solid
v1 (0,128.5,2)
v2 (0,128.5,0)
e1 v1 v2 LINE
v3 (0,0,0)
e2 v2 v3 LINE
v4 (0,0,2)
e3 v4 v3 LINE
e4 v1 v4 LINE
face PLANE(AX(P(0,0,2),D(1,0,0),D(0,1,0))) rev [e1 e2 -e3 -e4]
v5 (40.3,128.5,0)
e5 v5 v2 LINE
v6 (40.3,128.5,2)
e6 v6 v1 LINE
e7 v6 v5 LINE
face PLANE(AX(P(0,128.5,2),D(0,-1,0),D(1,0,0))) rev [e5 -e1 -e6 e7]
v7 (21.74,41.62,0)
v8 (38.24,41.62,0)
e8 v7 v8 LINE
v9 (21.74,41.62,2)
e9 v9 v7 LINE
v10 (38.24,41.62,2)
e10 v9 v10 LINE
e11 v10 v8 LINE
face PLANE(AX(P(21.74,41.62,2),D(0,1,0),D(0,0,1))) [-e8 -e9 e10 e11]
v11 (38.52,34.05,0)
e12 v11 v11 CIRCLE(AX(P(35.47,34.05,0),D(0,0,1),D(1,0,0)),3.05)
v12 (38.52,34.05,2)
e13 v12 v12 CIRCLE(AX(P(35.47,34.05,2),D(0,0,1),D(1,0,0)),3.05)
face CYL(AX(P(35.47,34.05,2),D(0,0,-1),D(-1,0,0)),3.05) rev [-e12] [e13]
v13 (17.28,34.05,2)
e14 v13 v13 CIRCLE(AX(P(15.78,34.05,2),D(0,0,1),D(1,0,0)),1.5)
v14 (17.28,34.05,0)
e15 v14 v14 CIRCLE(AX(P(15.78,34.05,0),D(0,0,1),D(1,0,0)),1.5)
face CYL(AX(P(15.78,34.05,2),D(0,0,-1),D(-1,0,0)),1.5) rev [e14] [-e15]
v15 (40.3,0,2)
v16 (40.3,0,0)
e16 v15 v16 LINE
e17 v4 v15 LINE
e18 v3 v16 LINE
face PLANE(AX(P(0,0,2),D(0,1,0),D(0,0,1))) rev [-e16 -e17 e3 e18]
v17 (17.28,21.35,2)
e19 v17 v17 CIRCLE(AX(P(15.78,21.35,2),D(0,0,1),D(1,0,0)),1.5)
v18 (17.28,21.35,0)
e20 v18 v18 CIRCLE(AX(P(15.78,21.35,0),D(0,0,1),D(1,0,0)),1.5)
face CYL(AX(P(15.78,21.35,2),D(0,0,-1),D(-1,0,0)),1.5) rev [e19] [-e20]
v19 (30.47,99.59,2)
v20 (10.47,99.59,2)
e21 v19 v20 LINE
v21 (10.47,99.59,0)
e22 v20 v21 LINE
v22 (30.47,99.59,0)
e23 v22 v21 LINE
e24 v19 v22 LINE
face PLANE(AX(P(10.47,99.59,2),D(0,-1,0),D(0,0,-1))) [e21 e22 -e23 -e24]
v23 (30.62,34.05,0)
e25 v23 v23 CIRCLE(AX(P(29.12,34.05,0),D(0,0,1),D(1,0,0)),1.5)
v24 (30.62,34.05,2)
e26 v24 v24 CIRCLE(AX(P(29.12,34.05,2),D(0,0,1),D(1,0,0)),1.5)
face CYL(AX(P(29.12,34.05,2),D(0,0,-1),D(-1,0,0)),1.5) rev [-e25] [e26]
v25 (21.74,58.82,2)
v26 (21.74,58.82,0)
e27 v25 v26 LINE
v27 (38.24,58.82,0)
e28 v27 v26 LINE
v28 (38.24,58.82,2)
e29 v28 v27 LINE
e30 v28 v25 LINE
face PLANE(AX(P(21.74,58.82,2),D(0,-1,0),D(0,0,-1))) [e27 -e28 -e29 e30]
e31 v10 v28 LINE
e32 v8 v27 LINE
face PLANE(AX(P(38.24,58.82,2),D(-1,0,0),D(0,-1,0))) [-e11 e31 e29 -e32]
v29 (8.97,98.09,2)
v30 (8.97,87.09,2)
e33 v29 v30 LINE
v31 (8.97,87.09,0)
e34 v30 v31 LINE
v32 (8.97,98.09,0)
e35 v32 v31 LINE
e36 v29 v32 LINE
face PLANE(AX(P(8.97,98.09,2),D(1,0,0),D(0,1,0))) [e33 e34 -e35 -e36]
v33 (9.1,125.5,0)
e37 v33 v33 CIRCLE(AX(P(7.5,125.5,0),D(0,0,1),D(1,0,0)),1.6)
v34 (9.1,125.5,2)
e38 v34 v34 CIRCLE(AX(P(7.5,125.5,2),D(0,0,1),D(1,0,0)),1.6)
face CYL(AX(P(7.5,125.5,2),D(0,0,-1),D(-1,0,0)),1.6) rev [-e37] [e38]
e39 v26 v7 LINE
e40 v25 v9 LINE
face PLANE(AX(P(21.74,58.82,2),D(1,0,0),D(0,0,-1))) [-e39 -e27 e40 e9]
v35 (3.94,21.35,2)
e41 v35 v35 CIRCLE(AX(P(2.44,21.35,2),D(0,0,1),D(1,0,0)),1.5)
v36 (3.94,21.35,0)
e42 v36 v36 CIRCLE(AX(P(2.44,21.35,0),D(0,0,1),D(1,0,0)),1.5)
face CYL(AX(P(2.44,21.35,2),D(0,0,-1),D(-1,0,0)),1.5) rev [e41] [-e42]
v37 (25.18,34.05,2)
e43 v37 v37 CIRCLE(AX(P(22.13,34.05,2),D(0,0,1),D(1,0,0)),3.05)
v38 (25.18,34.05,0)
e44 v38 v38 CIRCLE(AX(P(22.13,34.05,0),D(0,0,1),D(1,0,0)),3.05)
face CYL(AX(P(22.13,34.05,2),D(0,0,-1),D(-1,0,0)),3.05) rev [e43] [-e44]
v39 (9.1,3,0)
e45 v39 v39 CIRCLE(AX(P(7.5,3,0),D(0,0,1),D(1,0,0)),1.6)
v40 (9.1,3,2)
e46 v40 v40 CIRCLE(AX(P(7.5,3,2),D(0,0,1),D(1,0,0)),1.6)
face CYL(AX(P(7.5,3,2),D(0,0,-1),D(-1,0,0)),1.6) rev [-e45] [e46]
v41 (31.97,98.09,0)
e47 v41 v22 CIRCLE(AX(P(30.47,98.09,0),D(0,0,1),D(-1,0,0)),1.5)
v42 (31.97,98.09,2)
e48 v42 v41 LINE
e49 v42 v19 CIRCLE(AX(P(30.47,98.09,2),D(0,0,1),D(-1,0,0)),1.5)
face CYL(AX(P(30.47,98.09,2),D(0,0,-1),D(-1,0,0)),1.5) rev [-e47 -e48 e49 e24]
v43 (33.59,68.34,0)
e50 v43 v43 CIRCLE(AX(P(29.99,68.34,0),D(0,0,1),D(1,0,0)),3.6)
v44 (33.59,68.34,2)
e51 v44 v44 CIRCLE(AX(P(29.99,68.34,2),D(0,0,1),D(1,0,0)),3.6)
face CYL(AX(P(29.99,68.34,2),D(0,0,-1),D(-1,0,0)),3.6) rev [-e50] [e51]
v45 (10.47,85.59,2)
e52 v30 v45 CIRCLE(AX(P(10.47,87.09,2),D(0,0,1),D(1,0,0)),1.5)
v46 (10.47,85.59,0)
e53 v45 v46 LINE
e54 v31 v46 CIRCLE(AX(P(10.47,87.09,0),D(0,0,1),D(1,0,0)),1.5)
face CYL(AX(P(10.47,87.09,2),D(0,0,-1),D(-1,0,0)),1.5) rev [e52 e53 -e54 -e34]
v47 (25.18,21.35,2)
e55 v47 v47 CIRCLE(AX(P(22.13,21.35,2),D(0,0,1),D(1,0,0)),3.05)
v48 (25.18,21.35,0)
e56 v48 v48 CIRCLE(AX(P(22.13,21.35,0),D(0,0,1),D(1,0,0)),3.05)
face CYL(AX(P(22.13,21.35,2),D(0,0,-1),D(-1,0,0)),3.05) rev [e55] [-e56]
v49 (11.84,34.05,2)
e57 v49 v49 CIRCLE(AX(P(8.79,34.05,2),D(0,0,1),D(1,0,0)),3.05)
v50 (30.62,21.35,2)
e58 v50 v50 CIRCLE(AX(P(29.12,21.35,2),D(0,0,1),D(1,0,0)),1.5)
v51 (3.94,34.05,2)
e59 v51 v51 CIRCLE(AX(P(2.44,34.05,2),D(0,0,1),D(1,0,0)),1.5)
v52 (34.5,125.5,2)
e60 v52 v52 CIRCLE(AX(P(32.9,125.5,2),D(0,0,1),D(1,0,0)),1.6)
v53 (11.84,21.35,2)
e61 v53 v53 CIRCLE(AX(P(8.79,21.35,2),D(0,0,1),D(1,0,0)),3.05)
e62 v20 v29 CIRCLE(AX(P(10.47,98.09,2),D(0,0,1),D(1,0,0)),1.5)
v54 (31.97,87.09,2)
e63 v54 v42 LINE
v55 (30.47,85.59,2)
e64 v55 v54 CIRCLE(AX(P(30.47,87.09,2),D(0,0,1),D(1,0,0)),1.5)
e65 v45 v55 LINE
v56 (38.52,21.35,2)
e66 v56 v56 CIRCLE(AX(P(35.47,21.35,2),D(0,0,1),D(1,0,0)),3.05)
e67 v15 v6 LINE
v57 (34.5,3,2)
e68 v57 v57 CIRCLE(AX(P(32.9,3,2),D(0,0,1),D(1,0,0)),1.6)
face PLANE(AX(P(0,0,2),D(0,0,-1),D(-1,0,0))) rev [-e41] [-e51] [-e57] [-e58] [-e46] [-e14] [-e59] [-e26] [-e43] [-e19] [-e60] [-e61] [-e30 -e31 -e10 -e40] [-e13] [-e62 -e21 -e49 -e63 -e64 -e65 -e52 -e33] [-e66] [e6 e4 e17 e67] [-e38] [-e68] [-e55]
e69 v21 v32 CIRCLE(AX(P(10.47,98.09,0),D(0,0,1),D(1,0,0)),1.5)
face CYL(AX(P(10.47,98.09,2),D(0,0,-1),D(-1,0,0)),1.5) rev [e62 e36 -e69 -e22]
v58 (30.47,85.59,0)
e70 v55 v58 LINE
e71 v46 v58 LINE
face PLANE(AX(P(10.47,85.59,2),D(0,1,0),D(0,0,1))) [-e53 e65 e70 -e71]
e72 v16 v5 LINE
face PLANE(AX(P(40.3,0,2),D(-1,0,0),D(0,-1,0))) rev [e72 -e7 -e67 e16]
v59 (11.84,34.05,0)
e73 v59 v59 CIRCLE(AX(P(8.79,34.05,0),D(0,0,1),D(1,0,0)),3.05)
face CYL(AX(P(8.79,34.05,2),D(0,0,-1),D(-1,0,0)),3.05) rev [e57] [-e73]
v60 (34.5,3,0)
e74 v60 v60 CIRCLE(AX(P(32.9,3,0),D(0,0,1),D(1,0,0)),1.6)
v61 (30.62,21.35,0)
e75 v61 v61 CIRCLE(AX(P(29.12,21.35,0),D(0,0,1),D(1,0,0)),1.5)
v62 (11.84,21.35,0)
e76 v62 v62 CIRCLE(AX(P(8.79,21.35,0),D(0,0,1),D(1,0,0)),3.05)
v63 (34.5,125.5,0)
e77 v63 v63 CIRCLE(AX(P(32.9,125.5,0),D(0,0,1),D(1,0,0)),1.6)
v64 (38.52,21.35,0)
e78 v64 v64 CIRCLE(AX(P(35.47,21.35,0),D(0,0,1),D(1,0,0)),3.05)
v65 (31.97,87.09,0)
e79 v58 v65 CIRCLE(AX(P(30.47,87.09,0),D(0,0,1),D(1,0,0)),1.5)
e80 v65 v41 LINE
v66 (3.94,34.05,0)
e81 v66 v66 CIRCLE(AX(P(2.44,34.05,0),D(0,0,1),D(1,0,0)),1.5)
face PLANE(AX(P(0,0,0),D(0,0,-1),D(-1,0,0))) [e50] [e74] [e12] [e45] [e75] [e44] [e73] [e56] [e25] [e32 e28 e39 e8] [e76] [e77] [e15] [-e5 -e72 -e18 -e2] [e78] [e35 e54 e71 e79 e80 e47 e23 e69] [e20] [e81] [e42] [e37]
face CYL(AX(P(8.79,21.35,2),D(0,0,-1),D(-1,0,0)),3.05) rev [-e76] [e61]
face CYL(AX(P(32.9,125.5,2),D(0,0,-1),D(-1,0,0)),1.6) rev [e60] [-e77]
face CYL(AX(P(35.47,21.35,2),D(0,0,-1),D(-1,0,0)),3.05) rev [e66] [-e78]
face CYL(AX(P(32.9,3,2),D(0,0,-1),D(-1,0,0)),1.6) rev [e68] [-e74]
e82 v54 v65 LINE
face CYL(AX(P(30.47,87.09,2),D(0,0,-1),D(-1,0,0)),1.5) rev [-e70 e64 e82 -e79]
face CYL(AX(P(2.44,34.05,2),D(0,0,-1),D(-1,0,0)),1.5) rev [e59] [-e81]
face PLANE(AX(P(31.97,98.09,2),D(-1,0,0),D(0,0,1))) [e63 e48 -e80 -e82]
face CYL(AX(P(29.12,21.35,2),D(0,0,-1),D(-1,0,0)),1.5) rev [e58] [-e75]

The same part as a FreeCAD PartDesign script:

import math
import FreeCAD as App
import Part
import Sketcher
Q = App.Units.Quantity


def add_polygon(sketch, points):
    """Adds a closed chain of lines whose ends are joined by coincident constraints."""
    first, n = sketch.GeometryCount, len(points)
    for a, b in zip(points, points[1:] + points[:1]):
        sketch.addGeometry(Part.LineSegment(App.Vector(*a, 0), App.Vector(*b, 0)), False)
    for i in range(n):
        sketch.addConstraint(Sketcher.Constraint("Coincident", first + i, 2, first + (i + 1) % n, 1))

doc = App.newDocument("Part")
body = doc.addObject("PartDesign::Body", "Body")

# Sketch on XY plane
sketch1 = doc.addObject("Sketcher::SketchObject", "Sketch")
body.addObject(sketch1)
sketch1.AttachmentSupport = (doc.XY_Plane, [""])
sketch1.MapMode = "FlatFace"
add_polygon(sketch1, [(0, 128.5), (0, 0), (40.3, 0), (40.3, 128.5)])  # lines 0-3
sketch1.addGeometry(Part.Circle(App.Vector(7.5, 3, 0), App.Vector(0, 0, 1), 1.6), False)  # 4
sketch1.addGeometry(Part.Circle(App.Vector(2.44, 21.35, 0), App.Vector(0, 0, 1), 1.5), False)  # 5
sketch1.addGeometry(Part.Circle(App.Vector(8.79, 21.35, 0), App.Vector(0, 0, 1), 3.05), False)  # 6
sketch1.addGeometry(Part.Circle(App.Vector(15.78, 21.35, 0), App.Vector(0, 0, 1), 1.5), False)  # 7
sketch1.addGeometry(Part.Circle(App.Vector(2.44, 34.05, 0), App.Vector(0, 0, 1), 1.5), False)  # 8
sketch1.addGeometry(Part.Circle(App.Vector(8.79, 34.05, 0), App.Vector(0, 0, 1), 3.05), False)  # 9
sketch1.addGeometry(Part.Circle(App.Vector(15.78, 34.05, 0), App.Vector(0, 0, 1), 1.5), False)  # 10
sketch1.addGeometry(Part.Circle(App.Vector(22.13, 21.35, 0), App.Vector(0, 0, 1), 3.05), False)  # 11
sketch1.addGeometry(Part.Circle(App.Vector(29.12, 21.35, 0), App.Vector(0, 0, 1), 1.5), False)  # 12
sketch1.addGeometry(Part.Circle(App.Vector(32.9, 3, 0), App.Vector(0, 0, 1), 1.6), False)  # 13
sketch1.addGeometry(Part.Circle(App.Vector(35.47, 21.35, 0), App.Vector(0, 0, 1), 3.05), False)  # 14
sketch1.addGeometry(Part.Circle(App.Vector(22.13, 34.05, 0), App.Vector(0, 0, 1), 3.05), False)  # 15
sketch1.addGeometry(Part.Circle(App.Vector(29.12, 34.05, 0), App.Vector(0, 0, 1), 1.5), False)  # 16
sketch1.addGeometry(Part.Circle(App.Vector(35.47, 34.05, 0), App.Vector(0, 0, 1), 3.05), False)  # 17
add_polygon(sketch1, [(38.24, 41.62), (21.74, 41.62), (21.74, 58.82), (38.24, 58.82)])  # lines 18-21
sketch1.addGeometry(Part.Circle(App.Vector(7.5, 125.5, 0), App.Vector(0, 0, 1), 1.6), False)  # 22
sketch1.addGeometry(Part.ArcOfCircle(Part.Circle(App.Vector(10.47, 98.09, 0), App.Vector(0, 0, 1), 1.5), math.radians(90), math.radians(180)), False)  # 23
sketch1.addGeometry(Part.LineSegment(App.Vector(10.47, 99.59, 0), App.Vector(30.47, 99.59, 0)), False)  # 24
sketch1.addGeometry(Part.ArcOfCircle(Part.Circle(App.Vector(30.47, 98.09, 0), App.Vector(0, 0, 1), 1.5), math.radians(0), math.radians(90)), False)  # 25
sketch1.addGeometry(Part.LineSegment(App.Vector(31.97, 98.09, 0), App.Vector(31.97, 87.09, 0)), False)  # 26
sketch1.addGeometry(Part.ArcOfCircle(Part.Circle(App.Vector(30.47, 87.09, 0), App.Vector(0, 0, 1), 1.5), math.radians(-90), math.radians(0)), False)  # 27
sketch1.addGeometry(Part.LineSegment(App.Vector(30.47, 85.59, 0), App.Vector(10.47, 85.59, 0)), False)  # 28
sketch1.addGeometry(Part.ArcOfCircle(Part.Circle(App.Vector(10.47, 87.09, 0), App.Vector(0, 0, 1), 1.5), math.radians(180), math.radians(270)), False)  # 29
sketch1.addGeometry(Part.LineSegment(App.Vector(8.97, 87.09, 0), App.Vector(8.97, 98.09, 0)), False)  # 30
sketch1.addGeometry(Part.Circle(App.Vector(29.99, 68.34, 0), App.Vector(0, 0, 1), 3.6), False)  # 31
sketch1.addGeometry(Part.Circle(App.Vector(32.9, 125.5, 0), App.Vector(0, 0, 1), 1.6), False)  # 32
sketch1.addConstraint([
    Sketcher.Constraint("Tangent", 23, 1, 24, 1),
    Sketcher.Constraint("Tangent", 24, 2, 25, 2),
    Sketcher.Constraint("Tangent", 25, 1, 26, 1),
    Sketcher.Constraint("Tangent", 26, 2, 27, 2),
    Sketcher.Constraint("Tangent", 27, 1, 28, 1),
    Sketcher.Constraint("Tangent", 28, 2, 29, 2),
    Sketcher.Constraint("Tangent", 29, 1, 30, 1),
    Sketcher.Constraint("Tangent", 30, 2, 23, 2),
    Sketcher.Constraint("Vertical", 0),
    Sketcher.Constraint("Horizontal", 1),
    Sketcher.Constraint("Vertical", 2),
    Sketcher.Constraint("Horizontal", 3),
    Sketcher.Constraint("Horizontal", 18),
    Sketcher.Constraint("Vertical", 19),
    Sketcher.Constraint("Horizontal", 20),
    Sketcher.Constraint("Vertical", 21),
    Sketcher.Constraint("Horizontal", 24),
    Sketcher.Constraint("Vertical", 26),
    Sketcher.Constraint("Horizontal", 28),
    Sketcher.Constraint("Vertical", 30),
    Sketcher.Constraint("Coincident", 0, 2, -1, 1),
    Sketcher.Constraint("Equal", 5, 7),
    Sketcher.Constraint("Equal", 7, 8),
    Sketcher.Constraint("Equal", 6, 9),
    Sketcher.Constraint("Equal", 8, 10),
    Sketcher.Constraint("Equal", 9, 11),
    Sketcher.Constraint("Equal", 10, 12),
    Sketcher.Constraint("Equal", 4, 13),
    Sketcher.Constraint("Equal", 11, 14),
    Sketcher.Constraint("Equal", 14, 15),
    Sketcher.Constraint("Equal", 12, 16),
    Sketcher.Constraint("Equal", 15, 17),
    Sketcher.Constraint("Equal", 13, 22),
    Sketcher.Constraint("Equal", 16, 23),
    Sketcher.Constraint("Equal", 23, 25),
    Sketcher.Constraint("Equal", 25, 27),
    Sketcher.Constraint("Equal", 27, 29),
    Sketcher.Constraint("Equal", 22, 32),
    Sketcher.Constraint("Horizontal", 5, 3, 6, 3),
    Sketcher.Constraint("Horizontal", 6, 3, 7, 3),
    Sketcher.Constraint("Horizontal", 8, 3, 9, 3),
    Sketcher.Constraint("Horizontal", 9, 3, 10, 3),
    Sketcher.Constraint("Horizontal", 7, 3, 11, 3),
    Sketcher.Constraint("Horizontal", 11, 3, 12, 3),
    Sketcher.Constraint("Horizontal", 4, 3, 13, 3),
    Sketcher.Constraint("Horizontal", 12, 3, 14, 3),
    Sketcher.Constraint("Horizontal", 10, 3, 15, 3),
    Sketcher.Constraint("Horizontal", 15, 3, 16, 3),
    Sketcher.Constraint("Horizontal", 16, 3, 17, 3),
    Sketcher.Constraint("Horizontal", 22, 3, 32, 3),
    Sketcher.Constraint("Vertical", 5, 3, 8, 3),
    Sketcher.Constraint("Vertical", 6, 3, 9, 3),
    Sketcher.Constraint("Vertical", 7, 3, 10, 3),
    Sketcher.Constraint("Vertical", 11, 3, 15, 3),
    Sketcher.Constraint("Vertical", 12, 3, 16, 3),
    Sketcher.Constraint("Vertical", 14, 3, 17, 3),
    Sketcher.Constraint("Vertical", 4, 3, 22, 3),
    Sketcher.Constraint("Vertical", 13, 3, 32, 3),
    Sketcher.Constraint("Diameter", 5, Q("3 mm")),
    Sketcher.Constraint("Diameter", 4, Q("3.2 mm")),
    Sketcher.Constraint("Diameter", 6, Q("6.1 mm")),
    Sketcher.Constraint("Diameter", 31, Q("7.2 mm")),
    Sketcher.Constraint("DistanceX", 24, 1, 24, 2, Q("20 mm")),
    Sketcher.Constraint("DistanceY", 26, 2, 26, 1, Q("11 mm")),
    Sketcher.Constraint("DistanceX", 1, 1, 1, 2, Q("40.3 mm")),
    Sketcher.Constraint("DistanceX", 18, 2, 18, 1, Q("16.5 mm")),
    Sketcher.Constraint("DistanceY", 0, 2, 0, 1, Q("128.5 mm")),
    Sketcher.Constraint("DistanceY", 19, 1, 19, 2, Q("17.2 mm")),
    Sketcher.Constraint("DistanceY", -1, 1, 4, 3, Q("3 mm")),
    Sketcher.Constraint("DistanceX", 25, 3, 17, 3, Q("5 mm")),
    Sketcher.Constraint("DistanceY", 32, 3, 2, 2, Q("3 mm")),
    Sketcher.Constraint("DistanceX", -1, 1, 4, 3, Q("7.5 mm")),
    Sketcher.Constraint("DistanceX", -1, 1, 13, 3, Q("32.9 mm")),
    Sketcher.Constraint("DistanceY", 5, 3, 8, 3, Q("12.7 mm")),
    Sketcher.Constraint("DistanceX", -1, 1, 5, 3, Q("2.44 mm")),
    Sketcher.Constraint("DistanceY", -1, 1, 5, 3, Q("21.35 mm")),
    Sketcher.Constraint("DistanceX", -1, 1, 6, 3, Q("8.79 mm")),
    Sketcher.Constraint("DistanceX", -1, 1, 7, 3, Q("15.78 mm")),
    Sketcher.Constraint("DistanceX", -1, 1, 11, 3, Q("22.13 mm")),
    Sketcher.Constraint("DistanceX", -1, 1, 12, 3, Q("29.12 mm")),
    Sketcher.Constraint("DistanceX", -1, 1, 14, 3, Q("35.47 mm")),
    Sketcher.Constraint("DistanceY", -1, 1, 23, 3, Q("98.09 mm")),
    Sketcher.Constraint("DistanceX", -1, 1, 31, 3, Q("29.99 mm")),
    Sketcher.Constraint("DistanceY", -1, 1, 31, 3, Q("68.34 mm")),
    Sketcher.Constraint("DistanceX", -1, 1, 18, 2, Q("21.74 mm")),
    Sketcher.Constraint("DistanceY", -1, 1, 18, 2, Q("41.62 mm")),
])
pad1 = doc.addObject("PartDesign::Pad", "Pad")
body.addObject(pad1)
pad1.Profile = sketch1
pad1.Length = 2

doc.recompute()
